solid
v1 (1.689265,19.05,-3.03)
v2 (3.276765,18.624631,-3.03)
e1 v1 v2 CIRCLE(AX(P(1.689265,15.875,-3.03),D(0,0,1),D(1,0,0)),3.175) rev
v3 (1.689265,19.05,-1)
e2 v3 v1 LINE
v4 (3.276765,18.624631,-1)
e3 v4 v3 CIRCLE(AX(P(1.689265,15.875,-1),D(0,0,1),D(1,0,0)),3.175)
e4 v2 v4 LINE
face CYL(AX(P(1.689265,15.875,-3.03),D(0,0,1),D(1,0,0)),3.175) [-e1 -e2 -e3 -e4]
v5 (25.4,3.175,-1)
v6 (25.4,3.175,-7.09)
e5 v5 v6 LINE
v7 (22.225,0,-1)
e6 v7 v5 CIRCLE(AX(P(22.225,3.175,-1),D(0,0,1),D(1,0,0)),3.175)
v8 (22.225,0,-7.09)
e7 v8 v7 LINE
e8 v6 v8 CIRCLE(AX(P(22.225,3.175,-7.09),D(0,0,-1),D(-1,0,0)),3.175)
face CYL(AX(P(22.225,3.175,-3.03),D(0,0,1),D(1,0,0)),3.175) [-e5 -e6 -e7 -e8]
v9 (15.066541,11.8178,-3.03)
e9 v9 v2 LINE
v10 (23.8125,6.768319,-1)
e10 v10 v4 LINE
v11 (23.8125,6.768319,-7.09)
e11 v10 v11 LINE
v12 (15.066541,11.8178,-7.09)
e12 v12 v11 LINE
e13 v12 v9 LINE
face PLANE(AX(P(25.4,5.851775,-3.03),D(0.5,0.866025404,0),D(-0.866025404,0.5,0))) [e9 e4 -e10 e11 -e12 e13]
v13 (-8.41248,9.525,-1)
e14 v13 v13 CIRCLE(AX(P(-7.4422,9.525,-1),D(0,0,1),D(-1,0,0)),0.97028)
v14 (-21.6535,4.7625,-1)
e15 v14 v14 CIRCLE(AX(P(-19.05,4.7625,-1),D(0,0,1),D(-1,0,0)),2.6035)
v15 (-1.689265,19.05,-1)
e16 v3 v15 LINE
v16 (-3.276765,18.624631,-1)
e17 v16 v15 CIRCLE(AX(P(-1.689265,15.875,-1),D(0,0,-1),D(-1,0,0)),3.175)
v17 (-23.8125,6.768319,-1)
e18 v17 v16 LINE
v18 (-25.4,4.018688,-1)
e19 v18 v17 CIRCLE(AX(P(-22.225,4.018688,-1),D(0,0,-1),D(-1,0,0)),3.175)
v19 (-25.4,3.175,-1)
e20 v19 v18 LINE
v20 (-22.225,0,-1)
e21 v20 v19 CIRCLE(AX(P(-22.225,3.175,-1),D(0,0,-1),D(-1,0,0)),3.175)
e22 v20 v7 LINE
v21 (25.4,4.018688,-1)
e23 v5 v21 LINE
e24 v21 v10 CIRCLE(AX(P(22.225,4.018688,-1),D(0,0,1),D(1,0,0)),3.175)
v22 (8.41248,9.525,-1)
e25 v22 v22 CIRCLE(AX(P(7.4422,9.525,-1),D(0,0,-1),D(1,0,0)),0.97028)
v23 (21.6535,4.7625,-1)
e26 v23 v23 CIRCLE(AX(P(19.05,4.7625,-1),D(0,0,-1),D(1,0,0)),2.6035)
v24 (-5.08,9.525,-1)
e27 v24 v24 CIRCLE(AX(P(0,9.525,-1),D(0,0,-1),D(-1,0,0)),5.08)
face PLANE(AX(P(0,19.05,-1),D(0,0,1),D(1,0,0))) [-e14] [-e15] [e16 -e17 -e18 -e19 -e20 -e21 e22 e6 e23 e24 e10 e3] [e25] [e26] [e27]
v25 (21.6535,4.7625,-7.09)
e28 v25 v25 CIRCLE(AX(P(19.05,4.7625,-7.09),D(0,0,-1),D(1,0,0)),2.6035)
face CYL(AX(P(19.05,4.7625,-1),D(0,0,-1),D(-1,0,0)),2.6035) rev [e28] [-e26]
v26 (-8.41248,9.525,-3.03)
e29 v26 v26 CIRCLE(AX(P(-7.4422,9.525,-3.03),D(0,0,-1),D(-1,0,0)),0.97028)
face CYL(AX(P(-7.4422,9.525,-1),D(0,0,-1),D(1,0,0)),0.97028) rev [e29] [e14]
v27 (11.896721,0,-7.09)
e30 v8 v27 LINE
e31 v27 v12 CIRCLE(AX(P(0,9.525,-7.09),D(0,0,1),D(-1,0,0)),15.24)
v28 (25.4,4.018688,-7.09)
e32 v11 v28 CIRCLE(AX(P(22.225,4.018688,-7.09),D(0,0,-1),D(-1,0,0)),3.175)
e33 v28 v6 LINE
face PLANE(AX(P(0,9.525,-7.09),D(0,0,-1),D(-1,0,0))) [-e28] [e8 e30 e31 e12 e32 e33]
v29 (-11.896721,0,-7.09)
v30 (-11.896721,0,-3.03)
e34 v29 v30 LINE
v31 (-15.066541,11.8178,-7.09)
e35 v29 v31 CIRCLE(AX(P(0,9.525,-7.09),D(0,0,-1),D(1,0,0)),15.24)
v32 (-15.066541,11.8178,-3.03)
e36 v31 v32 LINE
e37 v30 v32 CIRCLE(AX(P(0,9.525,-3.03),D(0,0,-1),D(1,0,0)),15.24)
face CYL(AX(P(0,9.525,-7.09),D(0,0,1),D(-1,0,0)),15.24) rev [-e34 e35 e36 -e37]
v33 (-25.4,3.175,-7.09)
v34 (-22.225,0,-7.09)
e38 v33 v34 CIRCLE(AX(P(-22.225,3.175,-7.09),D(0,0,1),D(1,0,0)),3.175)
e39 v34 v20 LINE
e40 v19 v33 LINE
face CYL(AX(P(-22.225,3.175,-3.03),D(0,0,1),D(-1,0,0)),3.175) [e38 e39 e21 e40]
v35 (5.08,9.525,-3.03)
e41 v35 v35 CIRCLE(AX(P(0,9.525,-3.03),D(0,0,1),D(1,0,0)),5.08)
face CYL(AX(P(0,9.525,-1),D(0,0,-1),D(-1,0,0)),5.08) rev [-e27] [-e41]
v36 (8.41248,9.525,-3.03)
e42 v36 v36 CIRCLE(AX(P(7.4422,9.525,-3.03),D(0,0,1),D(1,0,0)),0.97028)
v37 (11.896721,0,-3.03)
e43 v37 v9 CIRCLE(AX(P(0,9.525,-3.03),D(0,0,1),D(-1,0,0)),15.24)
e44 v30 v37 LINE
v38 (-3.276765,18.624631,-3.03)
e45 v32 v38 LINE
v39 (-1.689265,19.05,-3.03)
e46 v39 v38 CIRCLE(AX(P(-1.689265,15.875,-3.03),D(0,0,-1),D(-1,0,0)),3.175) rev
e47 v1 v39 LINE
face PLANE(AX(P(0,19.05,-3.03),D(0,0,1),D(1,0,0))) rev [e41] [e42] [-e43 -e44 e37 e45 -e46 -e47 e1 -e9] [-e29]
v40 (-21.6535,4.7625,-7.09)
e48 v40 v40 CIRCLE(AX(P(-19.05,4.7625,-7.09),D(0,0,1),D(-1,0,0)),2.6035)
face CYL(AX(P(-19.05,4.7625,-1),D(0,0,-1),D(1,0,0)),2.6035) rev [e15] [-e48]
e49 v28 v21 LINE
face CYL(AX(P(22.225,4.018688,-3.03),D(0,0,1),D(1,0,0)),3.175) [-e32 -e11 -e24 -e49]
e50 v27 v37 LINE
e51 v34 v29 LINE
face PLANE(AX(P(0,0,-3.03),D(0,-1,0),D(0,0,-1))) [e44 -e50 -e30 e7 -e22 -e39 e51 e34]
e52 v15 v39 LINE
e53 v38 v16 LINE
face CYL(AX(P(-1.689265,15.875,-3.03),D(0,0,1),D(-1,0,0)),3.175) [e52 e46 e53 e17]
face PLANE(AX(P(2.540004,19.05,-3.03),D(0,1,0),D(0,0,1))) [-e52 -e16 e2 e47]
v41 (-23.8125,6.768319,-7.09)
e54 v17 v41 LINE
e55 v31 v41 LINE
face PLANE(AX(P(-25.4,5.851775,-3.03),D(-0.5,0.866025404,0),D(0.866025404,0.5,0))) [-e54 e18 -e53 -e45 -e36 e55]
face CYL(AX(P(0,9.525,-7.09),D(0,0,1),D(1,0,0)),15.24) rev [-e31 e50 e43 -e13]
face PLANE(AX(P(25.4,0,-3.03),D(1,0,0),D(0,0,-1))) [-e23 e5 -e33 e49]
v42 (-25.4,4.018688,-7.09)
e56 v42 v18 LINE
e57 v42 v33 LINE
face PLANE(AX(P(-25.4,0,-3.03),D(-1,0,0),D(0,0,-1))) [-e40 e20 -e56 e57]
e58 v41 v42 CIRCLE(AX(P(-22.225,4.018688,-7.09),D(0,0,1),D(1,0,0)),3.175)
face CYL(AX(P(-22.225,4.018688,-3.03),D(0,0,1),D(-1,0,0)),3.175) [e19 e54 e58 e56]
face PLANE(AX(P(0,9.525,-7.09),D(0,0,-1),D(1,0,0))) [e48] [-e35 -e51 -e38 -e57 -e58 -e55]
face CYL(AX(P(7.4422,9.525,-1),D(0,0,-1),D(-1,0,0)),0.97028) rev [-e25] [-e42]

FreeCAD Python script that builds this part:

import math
import FreeCAD as App
import Part
import Sketcher
Q = App.Units.Quantity


def edges_at(feature, points):
    """Names of the edges that pass closest to the given points."""
    edges = feature.Shape.Edges
    near = lambda p: min(range(len(edges)), key=lambda i: edges[i].distToShape(Part.Vertex(*p))[0])
    return sorted({f"Edge{near(p) + 1}" for p in points})


def add_polygon(sketch, points):
    """Adds a closed chain of lines whose ends are joined by coincident constraints."""
    first, n = sketch.GeometryCount, len(points)
    for a, b in zip(points, points[1:] + points[:1]):
        sketch.addGeometry(Part.LineSegment(App.Vector(*a, 0), App.Vector(*b, 0)), False)
    for i in range(n):
        sketch.addConstraint(Sketcher.Constraint("Coincident", first + i, 2, first + (i + 1) % n, 1))

doc = App.newDocument("Part")
body = doc.addObject("PartDesign::Body", "Body")

# Sketch on XY plane
sketch1 = body.newObject("Sketcher::SketchObject", "Sketch")
sketch1.AttachmentSupport = (doc.getObject("XY_Plane"), [""])
sketch1.MapMode = "FlatFace"
sketch1.AttachmentOffset = App.Placement(App.Vector(0, 0, -1), App.Rotation())
add_polygon(sketch1, [(0, 19.1), (0, 0), (25.4, 0), (25.4, 5.9), (2.5, 19.1)])  # lines 0-4
sketch1.addConstraint([
    Sketcher.Constraint("Vertical", 0),
    Sketcher.Constraint("Horizontal", 1),
    Sketcher.Constraint("Vertical", 2),
    Sketcher.Constraint("Horizontal", 4),
    Sketcher.Constraint("Coincident", 0, 2, -1, 1),
    Sketcher.Constraint("DistanceX", 1, 1, 1, 2, Q("1 in")),
    Sketcher.Constraint("DistanceX", 4, 2, 4, 1, Q("0.1000001 in")),
    Sketcher.Constraint("Angle", 3, Q("150 deg")),
    Sketcher.Constraint("DistanceY", 0, 2, 0, 1, Q("0.75 in")),
])
pad1 = body.newObject("PartDesign::Pad", "Pad")
pad1.Profile = sketch1
pad1.Length = 2.03
pad1.Reversed = True

# Sketch on XY plane
sketch2 = body.newObject("Sketcher::SketchObject", "Sketch001")
sketch2.AttachmentSupport = (doc.getObject("XY_Plane"), [""])
sketch2.MapMode = "FlatFace"
sketch2.AttachmentOffset = App.Placement(App.Vector(0, 0, -3.03), App.Rotation())
sketch2.addGeometry([
    Part.LineSegment(App.Vector(25, 0, 0), App.Vector(12, 0, 0)),
    Part.ArcOfCircle(Part.Circle(App.Vector(0, 10, 0), App.Vector(0, 0, 1), 15), math.radians(-39), math.radians(9)),
    Part.LineSegment(App.Vector(15, 12, 0), App.Vector(25, 6, 0)),
    Part.LineSegment(App.Vector(25, 6, 0), App.Vector(25, 0, 0)),
], False)
sketch2.addConstraint([
    Sketcher.Constraint("Coincident", 0, 2, 1, 1),
    Sketcher.Constraint("Coincident", 1, 2, 2, 1),
    Sketcher.Constraint("Coincident", 2, 2, 3, 1),
    Sketcher.Constraint("Coincident", 3, 2, 0, 1),
    Sketcher.Constraint("Horizontal", 0),
    Sketcher.Constraint("Vertical", 3),
    Sketcher.Constraint("PointOnObject", 1, 3, -2),
    Sketcher.Constraint("PointOnObject", 0, 2, -1),
    Sketcher.Constraint("Radius", 1, Q("0.6 in")),
    Sketcher.Constraint("DistanceX", -1, 1, 2, 2, Q("1 in")),
    Sketcher.Constraint("Angle", 2, Q("-30 deg")),
    Sketcher.Constraint("DistanceY", -1, 1, 1, 3, Q("0.375 in")),
    Sketcher.Constraint("DistanceY", -1, 1, 1, 2, Q("11.8178 mm")),
])
pad2 = body.newObject("PartDesign::Pad", "Pad001")
pad2.Profile = sketch2
pad2.Length = 4.06
pad2.Reversed = True

# Sketch on XY plane
sketch3 = body.newObject("Sketcher::SketchObject", "Sketch002")
sketch3.AttachmentSupport = (doc.getObject("XY_Plane"), [""])
sketch3.MapMode = "FlatFace"
sketch3.AttachmentOffset = App.Placement(App.Vector(0, 0, -7.09), App.Rotation())
sketch3.addGeometry([
    Part.Circle(App.Vector(0, 9.5, 0), App.Vector(0, 0, 1), 5.1),
    Part.Circle(App.Vector(19.1, 4.8, 0), App.Vector(0, 0, 1), 2.6),
    Part.Circle(App.Vector(7.4, 9.5, 0), App.Vector(0, 0, 1), 1),
], False)
sketch3.addConstraint([
    Sketcher.Constraint("PointOnObject", 0, 3, -2),
    Sketcher.Constraint("Horizontal", 0, 3, 2, 3),
    Sketcher.Constraint("Diameter", 0, Q("0.4 in")),
    Sketcher.Constraint("Diameter", 1, Q("0.205 in")),
    Sketcher.Constraint("Diameter", 2, Q("0.0764 in")),
    Sketcher.Constraint("DistanceX", -1, 1, 1, 3, Q("0.75 in")),
    Sketcher.Constraint("DistanceY", -1, 1, 0, 3, Q("0.375 in")),
    Sketcher.Constraint("DistanceY", -1, 1, 1, 3, Q("0.1875 in")),
    Sketcher.Constraint("DistanceX", -1, 1, 2, 3, Q("0.293 in")),
])
pocket1 = body.newObject("PartDesign::Pocket", "Pocket")
pocket1.Profile = sketch3
pocket1.Type = "ThroughAll"
pocket1.Reversed = True
doc.recompute()

fillet = body.newObject("PartDesign::Fillet", "Fillet")
fillet.Base = (pocket1, edges_at(pocket1, [(2.54, 19.05, -2.015), (25.4, 5.852, -5.06), (25.4, 0, -4.045)]))
fillet.Radius = Q("0.125 in")
body2 = doc.addObject("PartDesign::Body", "Body001")
doc.recompute()

body2.BaseFeature = body
doc.recompute()

mirroring = doc.addObject("Part::Mirroring", "Mirroring")
mirroring.Source = body
mirroring.Base = App.Vector(0, 19.05, -3.03)
mirroring.Normal = App.Vector(-1, 0, 0)
body3 = doc.addObject("PartDesign::Body", "Body002")
body3.BaseFeature = mirroring
boolean = body2.newObject("PartDesign::Boolean", "Boolean")
boolean.Type = "Fuse"
boolean.addObjects([body3])
doc.recompute()
mirroring.Visibility = False

doc.recompute()
